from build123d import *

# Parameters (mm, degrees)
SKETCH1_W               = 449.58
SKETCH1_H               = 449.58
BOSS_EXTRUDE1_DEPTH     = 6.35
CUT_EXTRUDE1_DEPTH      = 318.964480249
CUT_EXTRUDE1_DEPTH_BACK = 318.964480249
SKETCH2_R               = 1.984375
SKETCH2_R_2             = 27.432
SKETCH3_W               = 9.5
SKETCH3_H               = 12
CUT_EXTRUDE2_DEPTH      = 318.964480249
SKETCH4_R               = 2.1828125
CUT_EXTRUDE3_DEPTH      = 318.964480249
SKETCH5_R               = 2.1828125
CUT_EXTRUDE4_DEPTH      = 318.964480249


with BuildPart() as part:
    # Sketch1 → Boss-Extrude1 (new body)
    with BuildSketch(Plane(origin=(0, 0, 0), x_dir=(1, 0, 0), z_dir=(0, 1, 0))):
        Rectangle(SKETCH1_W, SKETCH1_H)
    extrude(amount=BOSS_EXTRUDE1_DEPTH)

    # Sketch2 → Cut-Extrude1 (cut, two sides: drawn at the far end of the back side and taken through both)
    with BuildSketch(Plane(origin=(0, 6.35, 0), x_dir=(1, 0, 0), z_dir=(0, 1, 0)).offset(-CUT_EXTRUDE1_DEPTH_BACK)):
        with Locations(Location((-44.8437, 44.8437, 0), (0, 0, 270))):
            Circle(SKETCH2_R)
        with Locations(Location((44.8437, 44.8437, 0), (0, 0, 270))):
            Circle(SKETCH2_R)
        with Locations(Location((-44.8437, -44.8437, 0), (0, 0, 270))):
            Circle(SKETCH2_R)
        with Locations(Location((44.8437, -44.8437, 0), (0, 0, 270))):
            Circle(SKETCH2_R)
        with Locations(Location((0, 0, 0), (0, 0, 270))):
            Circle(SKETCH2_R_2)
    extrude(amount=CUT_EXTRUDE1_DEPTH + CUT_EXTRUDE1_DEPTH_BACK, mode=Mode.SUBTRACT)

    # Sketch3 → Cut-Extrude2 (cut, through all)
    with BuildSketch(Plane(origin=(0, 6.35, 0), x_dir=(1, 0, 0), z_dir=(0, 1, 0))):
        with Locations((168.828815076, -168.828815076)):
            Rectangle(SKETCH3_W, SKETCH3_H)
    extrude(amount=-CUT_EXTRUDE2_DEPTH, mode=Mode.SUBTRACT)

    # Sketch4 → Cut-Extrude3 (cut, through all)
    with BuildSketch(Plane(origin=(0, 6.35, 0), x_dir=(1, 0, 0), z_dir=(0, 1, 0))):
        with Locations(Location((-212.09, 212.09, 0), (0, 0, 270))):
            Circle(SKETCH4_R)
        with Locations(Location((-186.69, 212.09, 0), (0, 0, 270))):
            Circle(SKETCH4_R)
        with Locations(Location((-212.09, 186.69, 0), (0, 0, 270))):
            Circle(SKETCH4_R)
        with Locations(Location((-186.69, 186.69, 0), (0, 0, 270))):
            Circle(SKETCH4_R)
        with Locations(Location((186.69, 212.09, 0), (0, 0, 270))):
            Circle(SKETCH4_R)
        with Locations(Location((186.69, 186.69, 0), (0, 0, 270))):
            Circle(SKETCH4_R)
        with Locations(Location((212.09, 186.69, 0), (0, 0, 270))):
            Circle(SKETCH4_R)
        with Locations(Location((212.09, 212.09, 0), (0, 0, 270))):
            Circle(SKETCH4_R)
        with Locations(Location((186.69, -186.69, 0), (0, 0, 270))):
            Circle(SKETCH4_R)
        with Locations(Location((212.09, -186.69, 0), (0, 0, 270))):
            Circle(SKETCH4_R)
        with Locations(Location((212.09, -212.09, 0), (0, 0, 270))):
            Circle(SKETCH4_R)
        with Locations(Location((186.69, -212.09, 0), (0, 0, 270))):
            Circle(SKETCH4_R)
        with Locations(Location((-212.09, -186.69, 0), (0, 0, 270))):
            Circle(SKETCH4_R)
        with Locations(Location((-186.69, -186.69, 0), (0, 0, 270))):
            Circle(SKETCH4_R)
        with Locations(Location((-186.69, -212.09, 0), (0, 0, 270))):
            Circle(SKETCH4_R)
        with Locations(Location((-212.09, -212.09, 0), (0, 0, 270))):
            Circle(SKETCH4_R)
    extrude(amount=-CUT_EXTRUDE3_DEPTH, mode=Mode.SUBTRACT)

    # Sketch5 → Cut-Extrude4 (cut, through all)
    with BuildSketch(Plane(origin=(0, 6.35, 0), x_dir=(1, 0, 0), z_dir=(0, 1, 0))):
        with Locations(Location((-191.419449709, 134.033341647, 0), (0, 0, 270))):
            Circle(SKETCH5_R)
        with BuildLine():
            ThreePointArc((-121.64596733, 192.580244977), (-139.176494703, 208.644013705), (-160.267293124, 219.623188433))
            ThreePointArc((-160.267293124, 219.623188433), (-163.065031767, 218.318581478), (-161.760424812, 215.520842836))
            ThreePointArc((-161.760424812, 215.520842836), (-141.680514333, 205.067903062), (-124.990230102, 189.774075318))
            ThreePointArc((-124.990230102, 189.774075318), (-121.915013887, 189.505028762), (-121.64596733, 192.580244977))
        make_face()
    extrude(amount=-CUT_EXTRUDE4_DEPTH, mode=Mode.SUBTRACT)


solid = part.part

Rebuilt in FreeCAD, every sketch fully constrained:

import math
import FreeCAD as App
import Part
import Sketcher
from FreeCAD import Vector
Q = App.Units.Quantity

doc = App.newDocument("Part")
body = doc.addObject("PartDesign::Body", "Body")

# Sketch on XZ plane
sketch1 = body.newObject("Sketcher::SketchObject", "Sketch")
sketch1.AttachmentSupport = (doc.getObject("XZ_Plane"), [""])
sketch1.MapMode = "FlatFace"
sketch1.addGeometry([
    Part.LineSegment(Vector(-225, -225, 0), Vector(-225, 225, 0)),
    Part.LineSegment(Vector(-225, 225, 0), Vector(225, 225, 0)),
    Part.LineSegment(Vector(225, 225, 0), Vector(225, -225, 0)),
    Part.LineSegment(Vector(225, -225, 0), Vector(-225, -225, 0)),
], False)
sketch1.addConstraint([
    Sketcher.Constraint("Coincident", 0, 2, 1, 1),
    Sketcher.Constraint("Coincident", 1, 2, 2, 1),
    Sketcher.Constraint("Coincident", 2, 2, 3, 1),
    Sketcher.Constraint("Coincident", 3, 2, 0, 1),
    Sketcher.Constraint("Vertical", 0),
    Sketcher.Constraint("Horizontal", 1),
    Sketcher.Constraint("Vertical", 2),
    Sketcher.Constraint("Horizontal", 3),
    Sketcher.Constraint("Symmetric", 0, 2, 2, 2, -1, 1),
    Sketcher.Constraint("Equal", 3, 0),
    Sketcher.Constraint("DistanceX", 1, 1, 1, 2, Q("17.7 in")),
])
pad1 = body.newObject("PartDesign::Pad", "Pad")
pad1.Profile = sketch1
pad1.Length = Q("0.25 in")
pad1.Reversed = True

# Sketch on XZ plane
sketch2 = body.newObject("Sketcher::SketchObject", "Sketch001")
sketch2.AttachmentSupport = (doc.getObject("XZ_Plane"), [""])
sketch2.MapMode = "FlatFace"
sketch2.AttachmentOffset = App.Placement(Vector(0, 0, -0.25 * 25.4), App.Rotation())
sketch2.addGeometry([
    Part.Circle(Vector(-44.8, -44.8, 0), Vector(0, 0, 1), 2),  # 0
    Part.Circle(Vector(44.8, -44.8, 0), Vector(0, 0, 1), 2),  # 1
    Part.Circle(Vector(-44.8, 44.8, 0), Vector(0, 0, 1), 2),  # 2
    Part.Circle(Vector(44.8, 44.8, 0), Vector(0, 0, 1), 2),  # 3
    Part.Circle(Vector(0, 0, 0), Vector(0, 0, 1), 27.4),  # 4
], False)
sketch2.addConstraint([
    Sketcher.Constraint("Coincident", 4, 3, -1, 1),
    Sketcher.Constraint("Equal", 0, 1),
    Sketcher.Constraint("Equal", 1, 2),
    Sketcher.Constraint("Equal", 2, 3),
    Sketcher.Constraint("Symmetric", 1, 3, 2, 3, -1, 1),
    Sketcher.Constraint("Symmetric", 0, 3, 3, 3, -1, 1),
    Sketcher.Constraint("Symmetric", 0, 3, 1, 3, -2),
    Sketcher.Constraint("Diameter", 4, Q("2.16 in")),
    Sketcher.Constraint("Diameter", 0, Q("0.15625 in")),
    Sketcher.Constraint("DistanceX", 0, 3, 1, 3, Q("3.531 in")),
    Sketcher.Constraint("DistanceY", 0, 3, 2, 3, Q("3.531 in")),
])
pocket1 = body.newObject("PartDesign::Pocket", "Pocket")
pocket1.Profile = sketch2
pocket1.Type = "ThroughAll"
pocket1.Midplane = True

# Sketch on XZ plane
sketch3 = body.newObject("Sketcher::SketchObject", "Sketch002")
sketch3.AttachmentSupport = (doc.getObject("XZ_Plane"), [""])
sketch3.MapMode = "FlatFace"
sketch3.AttachmentOffset = App.Placement(Vector(0, 0, -0.25 * 25.4), App.Rotation())
sketch3.addGeometry([
    Part.LineSegment(Vector(164, 163, 0), Vector(164, 175, 0)),
    Part.LineSegment(Vector(164, 175, 0), Vector(174, 175, 0)),
    Part.LineSegment(Vector(174, 175, 0), Vector(174, 163, 0)),
    Part.LineSegment(Vector(174, 163, 0), Vector(164, 163, 0)),
], False)
sketch3.addConstraint([
    Sketcher.Constraint("Coincident", 0, 2, 1, 1),
    Sketcher.Constraint("Coincident", 1, 2, 2, 1),
    Sketcher.Constraint("Coincident", 2, 2, 3, 1),
    Sketcher.Constraint("Coincident", 3, 2, 0, 1),
    Sketcher.Constraint("Vertical", 0),
    Sketcher.Constraint("Horizontal", 1),
    Sketcher.Constraint("Vertical", 2),
    Sketcher.Constraint("Horizontal", 3),
    Sketcher.Constraint("DistanceX", 1, 1, 1, 2, Q("9.5 mm")),
    Sketcher.Constraint("DistanceY", 0, 1, 0, 2, Q("12 mm")),
    Sketcher.Constraint("DistanceX", -1, 1, 0, 2, Q("164.078815 mm")),
    Sketcher.Constraint("DistanceY", -1, 1, 0, 2, Q("174.828815 mm")),
])
pocket2 = body.newObject("PartDesign::Pocket", "Pocket001")
pocket2.Profile = sketch3
pocket2.Type = "ThroughAll"
pocket2.Reversed = True

# Sketch on XZ plane
sketch4 = body.newObject("Sketcher::SketchObject", "Sketch003")
sketch4.AttachmentSupport = (doc.getObject("XZ_Plane"), [""])
sketch4.MapMode = "FlatFace"
sketch4.AttachmentOffset = App.Placement(Vector(0, 0, -0.25 * 25.4), App.Rotation())
sketch4.addGeometry([
    Part.Circle(Vector(-212.1, -212.1, 0), Vector(0, 0, 1), 2.2),  # 0
    Part.Circle(Vector(-186.7, -212.1, 0), Vector(0, 0, 1), 2.2),  # 1
    Part.Circle(Vector(-212.1, -186.7, 0), Vector(0, 0, 1), 2.2),  # 2
    Part.Circle(Vector(-186.7, -186.7, 0), Vector(0, 0, 1), 2.2),  # 3
    Part.Circle(Vector(186.7, -212.1, 0), Vector(0, 0, 1), 2.2),  # 4
    Part.Circle(Vector(186.7, -186.7, 0), Vector(0, 0, 1), 2.2),  # 5
    Part.Circle(Vector(212.1, -186.7, 0), Vector(0, 0, 1), 2.2),  # 6
    Part.Circle(Vector(212.1, -212.1, 0), Vector(0, 0, 1), 2.2),  # 7
    Part.Circle(Vector(186.7, 186.7, 0), Vector(0, 0, 1), 2.2),  # 8
    Part.Circle(Vector(212.1, 186.7, 0), Vector(0, 0, 1), 2.2),  # 9
    Part.Circle(Vector(212.1, 212.1, 0), Vector(0, 0, 1), 2.2),  # 10
    Part.Circle(Vector(186.7, 212.1, 0), Vector(0, 0, 1), 2.2),  # 11
    Part.Circle(Vector(-212.1, 186.7, 0), Vector(0, 0, 1), 2.2),  # 12
    Part.Circle(Vector(-186.7, 186.7, 0), Vector(0, 0, 1), 2.2),  # 13
    Part.Circle(Vector(-186.7, 212.1, 0), Vector(0, 0, 1), 2.2),  # 14
    Part.Circle(Vector(-212.1, 212.1, 0), Vector(0, 0, 1), 2.2),  # 15
], False)
sketch4.addConstraint([
    Sketcher.Constraint("Equal", 0, 1),
    Sketcher.Constraint("Equal", 1, 2),
    Sketcher.Constraint("Equal", 2, 3),
    Sketcher.Constraint("Equal", 3, 4),
    Sketcher.Constraint("Equal", 4, 5),
    Sketcher.Constraint("Equal", 5, 6),
    Sketcher.Constraint("Equal", 6, 7),
    Sketcher.Constraint("Equal", 7, 8),
    Sketcher.Constraint("Equal", 8, 9),
    Sketcher.Constraint("Equal", 9, 10),
    Sketcher.Constraint("Equal", 10, 11),
    Sketcher.Constraint("Equal", 11, 12),
    Sketcher.Constraint("Equal", 12, 13),
    Sketcher.Constraint("Equal", 13, 14),
    Sketcher.Constraint("Equal", 14, 15),
    Sketcher.Constraint("Symmetric", 3, 3, 8, 3, -1, 1),
    Sketcher.Constraint("Symmetric", 2, 3, 9, 3, -1, 1),
    Sketcher.Constraint("Symmetric", 0, 3, 10, 3, -1, 1),
    Sketcher.Constraint("Symmetric", 1, 3, 11, 3, -1, 1),
    Sketcher.Constraint("Symmetric", 6, 3, 12, 3, -1, 1),
    Sketcher.Constraint("Symmetric", 5, 3, 13, 3, -1, 1),
    Sketcher.Constraint("Symmetric", 4, 3, 14, 3, -1, 1),
    Sketcher.Constraint("Symmetric", 7, 3, 15, 3, -1, 1),
    Sketcher.Constraint("Symmetric", 1, 3, 4, 3, -2),
    Sketcher.Constraint("Symmetric", 3, 3, 5, 3, -2),
    Sketcher.Constraint("Symmetric", 2, 3, 6, 3, -2),
    Sketcher.Constraint("Symmetric", 0, 3, 7, 3, -2),
    Sketcher.Constraint("Horizontal", 0, 3, 1, 3),
    Sketcher.Constraint("Horizontal", 2, 3, 3, 3),
    Sketcher.Constraint("Vertical", 0, 3, 2, 3),
    Sketcher.Constraint("Vertical", 1, 3, 3, 3),
    Sketcher.Constraint("Diameter", 0, Q("0.171875 in")),
    Sketcher.Constraint("DistanceX", 0, 3, 1, 3, Q("1 in")),
    Sketcher.Constraint("DistanceY", 0, 3, 2, 3, Q("1 in")),
    Sketcher.Constraint("DistanceX", 1, 3, 4, 3, Q("14.7 in")),
    Sketcher.Constraint("DistanceY", 5, 3, 8, 3, Q("14.7 in")),
])
pocket3 = body.newObject("PartDesign::Pocket", "Pocket002")
pocket3.Profile = sketch4
pocket3.Type = "ThroughAll"
pocket3.Reversed = True

# Sketch on XZ plane
sketch5 = body.newObject("Sketcher::SketchObject", "Sketch004")
sketch5.AttachmentSupport = (doc.getObject("XZ_Plane"), [""])
sketch5.MapMode = "FlatFace"
sketch5.AttachmentOffset = App.Placement(Vector(0, 0, -0.25 * 25.4), App.Rotation())
sketch5.addGeometry([
    Part.Circle(Vector(-191.4, -134, 0), Vector(0, 0, 1), 2.2),  # 0
    Part.ArcOfCircle(Part.Circle(Vector(-191.4, -134, 0), Vector(0, 0, 1), 91.1), math.radians(-70), math.radians(-40)),  # 1
    Part.ArcOfCircle(Part.Circle(Vector(-161, -217.6, 0), Vector(0, 0, 1), 2.2), math.radians(110), math.radians(290)),  # 2
    Part.ArcOfCircle(Part.Circle(Vector(-191.4, -134, 0), Vector(0, 0, 1), 86.7), math.radians(-70), math.radians(-40)),  # 3
    Part.ArcOfCircle(Part.Circle(Vector(-123.3, -191.2, 0), Vector(0, 0, 1), 2.2), math.radians(-40), math.radians(140)),  # 4
], False)
sketch5.addConstraint([
    Sketcher.Constraint("Tangent", 1, 1, 2, 2),
    Sketcher.Constraint("Tangent", 2, 1, 3, 1),
    Sketcher.Constraint("Tangent", 3, 2, 4, 2),
    Sketcher.Constraint("Tangent", 4, 1, 1, 2),
    Sketcher.Constraint("Coincident", 1, 3, 0, 3),
    Sketcher.Constraint("Coincident", 3, 3, 0, 3),
    Sketcher.Constraint("Equal", 0, 2),
    Sketcher.Constraint("Diameter", 0, Q("0.171875 in")),
    Sketcher.Constraint("Radius", 1, Q("91.082813 mm")),
    Sketcher.Constraint("DistanceX", 4, 3, -1, 1, Q("123.318099 mm")),
    Sketcher.Constraint("DistanceY", 2, 1, 0, 3, Q("81.487501 mm")),
    Sketcher.Constraint("DistanceX", 0, 3, -1, 1, Q("191.41945 mm")),
    Sketcher.Constraint("DistanceY", 0, 3, -1, 1, Q("134.033342 mm")),
])
pocket4 = body.newObject("PartDesign::Pocket", "Pocket003")
pocket4.Profile = sketch5
pocket4.Type = "ThroughAll"
pocket4.Reversed = True

doc.recompute()
